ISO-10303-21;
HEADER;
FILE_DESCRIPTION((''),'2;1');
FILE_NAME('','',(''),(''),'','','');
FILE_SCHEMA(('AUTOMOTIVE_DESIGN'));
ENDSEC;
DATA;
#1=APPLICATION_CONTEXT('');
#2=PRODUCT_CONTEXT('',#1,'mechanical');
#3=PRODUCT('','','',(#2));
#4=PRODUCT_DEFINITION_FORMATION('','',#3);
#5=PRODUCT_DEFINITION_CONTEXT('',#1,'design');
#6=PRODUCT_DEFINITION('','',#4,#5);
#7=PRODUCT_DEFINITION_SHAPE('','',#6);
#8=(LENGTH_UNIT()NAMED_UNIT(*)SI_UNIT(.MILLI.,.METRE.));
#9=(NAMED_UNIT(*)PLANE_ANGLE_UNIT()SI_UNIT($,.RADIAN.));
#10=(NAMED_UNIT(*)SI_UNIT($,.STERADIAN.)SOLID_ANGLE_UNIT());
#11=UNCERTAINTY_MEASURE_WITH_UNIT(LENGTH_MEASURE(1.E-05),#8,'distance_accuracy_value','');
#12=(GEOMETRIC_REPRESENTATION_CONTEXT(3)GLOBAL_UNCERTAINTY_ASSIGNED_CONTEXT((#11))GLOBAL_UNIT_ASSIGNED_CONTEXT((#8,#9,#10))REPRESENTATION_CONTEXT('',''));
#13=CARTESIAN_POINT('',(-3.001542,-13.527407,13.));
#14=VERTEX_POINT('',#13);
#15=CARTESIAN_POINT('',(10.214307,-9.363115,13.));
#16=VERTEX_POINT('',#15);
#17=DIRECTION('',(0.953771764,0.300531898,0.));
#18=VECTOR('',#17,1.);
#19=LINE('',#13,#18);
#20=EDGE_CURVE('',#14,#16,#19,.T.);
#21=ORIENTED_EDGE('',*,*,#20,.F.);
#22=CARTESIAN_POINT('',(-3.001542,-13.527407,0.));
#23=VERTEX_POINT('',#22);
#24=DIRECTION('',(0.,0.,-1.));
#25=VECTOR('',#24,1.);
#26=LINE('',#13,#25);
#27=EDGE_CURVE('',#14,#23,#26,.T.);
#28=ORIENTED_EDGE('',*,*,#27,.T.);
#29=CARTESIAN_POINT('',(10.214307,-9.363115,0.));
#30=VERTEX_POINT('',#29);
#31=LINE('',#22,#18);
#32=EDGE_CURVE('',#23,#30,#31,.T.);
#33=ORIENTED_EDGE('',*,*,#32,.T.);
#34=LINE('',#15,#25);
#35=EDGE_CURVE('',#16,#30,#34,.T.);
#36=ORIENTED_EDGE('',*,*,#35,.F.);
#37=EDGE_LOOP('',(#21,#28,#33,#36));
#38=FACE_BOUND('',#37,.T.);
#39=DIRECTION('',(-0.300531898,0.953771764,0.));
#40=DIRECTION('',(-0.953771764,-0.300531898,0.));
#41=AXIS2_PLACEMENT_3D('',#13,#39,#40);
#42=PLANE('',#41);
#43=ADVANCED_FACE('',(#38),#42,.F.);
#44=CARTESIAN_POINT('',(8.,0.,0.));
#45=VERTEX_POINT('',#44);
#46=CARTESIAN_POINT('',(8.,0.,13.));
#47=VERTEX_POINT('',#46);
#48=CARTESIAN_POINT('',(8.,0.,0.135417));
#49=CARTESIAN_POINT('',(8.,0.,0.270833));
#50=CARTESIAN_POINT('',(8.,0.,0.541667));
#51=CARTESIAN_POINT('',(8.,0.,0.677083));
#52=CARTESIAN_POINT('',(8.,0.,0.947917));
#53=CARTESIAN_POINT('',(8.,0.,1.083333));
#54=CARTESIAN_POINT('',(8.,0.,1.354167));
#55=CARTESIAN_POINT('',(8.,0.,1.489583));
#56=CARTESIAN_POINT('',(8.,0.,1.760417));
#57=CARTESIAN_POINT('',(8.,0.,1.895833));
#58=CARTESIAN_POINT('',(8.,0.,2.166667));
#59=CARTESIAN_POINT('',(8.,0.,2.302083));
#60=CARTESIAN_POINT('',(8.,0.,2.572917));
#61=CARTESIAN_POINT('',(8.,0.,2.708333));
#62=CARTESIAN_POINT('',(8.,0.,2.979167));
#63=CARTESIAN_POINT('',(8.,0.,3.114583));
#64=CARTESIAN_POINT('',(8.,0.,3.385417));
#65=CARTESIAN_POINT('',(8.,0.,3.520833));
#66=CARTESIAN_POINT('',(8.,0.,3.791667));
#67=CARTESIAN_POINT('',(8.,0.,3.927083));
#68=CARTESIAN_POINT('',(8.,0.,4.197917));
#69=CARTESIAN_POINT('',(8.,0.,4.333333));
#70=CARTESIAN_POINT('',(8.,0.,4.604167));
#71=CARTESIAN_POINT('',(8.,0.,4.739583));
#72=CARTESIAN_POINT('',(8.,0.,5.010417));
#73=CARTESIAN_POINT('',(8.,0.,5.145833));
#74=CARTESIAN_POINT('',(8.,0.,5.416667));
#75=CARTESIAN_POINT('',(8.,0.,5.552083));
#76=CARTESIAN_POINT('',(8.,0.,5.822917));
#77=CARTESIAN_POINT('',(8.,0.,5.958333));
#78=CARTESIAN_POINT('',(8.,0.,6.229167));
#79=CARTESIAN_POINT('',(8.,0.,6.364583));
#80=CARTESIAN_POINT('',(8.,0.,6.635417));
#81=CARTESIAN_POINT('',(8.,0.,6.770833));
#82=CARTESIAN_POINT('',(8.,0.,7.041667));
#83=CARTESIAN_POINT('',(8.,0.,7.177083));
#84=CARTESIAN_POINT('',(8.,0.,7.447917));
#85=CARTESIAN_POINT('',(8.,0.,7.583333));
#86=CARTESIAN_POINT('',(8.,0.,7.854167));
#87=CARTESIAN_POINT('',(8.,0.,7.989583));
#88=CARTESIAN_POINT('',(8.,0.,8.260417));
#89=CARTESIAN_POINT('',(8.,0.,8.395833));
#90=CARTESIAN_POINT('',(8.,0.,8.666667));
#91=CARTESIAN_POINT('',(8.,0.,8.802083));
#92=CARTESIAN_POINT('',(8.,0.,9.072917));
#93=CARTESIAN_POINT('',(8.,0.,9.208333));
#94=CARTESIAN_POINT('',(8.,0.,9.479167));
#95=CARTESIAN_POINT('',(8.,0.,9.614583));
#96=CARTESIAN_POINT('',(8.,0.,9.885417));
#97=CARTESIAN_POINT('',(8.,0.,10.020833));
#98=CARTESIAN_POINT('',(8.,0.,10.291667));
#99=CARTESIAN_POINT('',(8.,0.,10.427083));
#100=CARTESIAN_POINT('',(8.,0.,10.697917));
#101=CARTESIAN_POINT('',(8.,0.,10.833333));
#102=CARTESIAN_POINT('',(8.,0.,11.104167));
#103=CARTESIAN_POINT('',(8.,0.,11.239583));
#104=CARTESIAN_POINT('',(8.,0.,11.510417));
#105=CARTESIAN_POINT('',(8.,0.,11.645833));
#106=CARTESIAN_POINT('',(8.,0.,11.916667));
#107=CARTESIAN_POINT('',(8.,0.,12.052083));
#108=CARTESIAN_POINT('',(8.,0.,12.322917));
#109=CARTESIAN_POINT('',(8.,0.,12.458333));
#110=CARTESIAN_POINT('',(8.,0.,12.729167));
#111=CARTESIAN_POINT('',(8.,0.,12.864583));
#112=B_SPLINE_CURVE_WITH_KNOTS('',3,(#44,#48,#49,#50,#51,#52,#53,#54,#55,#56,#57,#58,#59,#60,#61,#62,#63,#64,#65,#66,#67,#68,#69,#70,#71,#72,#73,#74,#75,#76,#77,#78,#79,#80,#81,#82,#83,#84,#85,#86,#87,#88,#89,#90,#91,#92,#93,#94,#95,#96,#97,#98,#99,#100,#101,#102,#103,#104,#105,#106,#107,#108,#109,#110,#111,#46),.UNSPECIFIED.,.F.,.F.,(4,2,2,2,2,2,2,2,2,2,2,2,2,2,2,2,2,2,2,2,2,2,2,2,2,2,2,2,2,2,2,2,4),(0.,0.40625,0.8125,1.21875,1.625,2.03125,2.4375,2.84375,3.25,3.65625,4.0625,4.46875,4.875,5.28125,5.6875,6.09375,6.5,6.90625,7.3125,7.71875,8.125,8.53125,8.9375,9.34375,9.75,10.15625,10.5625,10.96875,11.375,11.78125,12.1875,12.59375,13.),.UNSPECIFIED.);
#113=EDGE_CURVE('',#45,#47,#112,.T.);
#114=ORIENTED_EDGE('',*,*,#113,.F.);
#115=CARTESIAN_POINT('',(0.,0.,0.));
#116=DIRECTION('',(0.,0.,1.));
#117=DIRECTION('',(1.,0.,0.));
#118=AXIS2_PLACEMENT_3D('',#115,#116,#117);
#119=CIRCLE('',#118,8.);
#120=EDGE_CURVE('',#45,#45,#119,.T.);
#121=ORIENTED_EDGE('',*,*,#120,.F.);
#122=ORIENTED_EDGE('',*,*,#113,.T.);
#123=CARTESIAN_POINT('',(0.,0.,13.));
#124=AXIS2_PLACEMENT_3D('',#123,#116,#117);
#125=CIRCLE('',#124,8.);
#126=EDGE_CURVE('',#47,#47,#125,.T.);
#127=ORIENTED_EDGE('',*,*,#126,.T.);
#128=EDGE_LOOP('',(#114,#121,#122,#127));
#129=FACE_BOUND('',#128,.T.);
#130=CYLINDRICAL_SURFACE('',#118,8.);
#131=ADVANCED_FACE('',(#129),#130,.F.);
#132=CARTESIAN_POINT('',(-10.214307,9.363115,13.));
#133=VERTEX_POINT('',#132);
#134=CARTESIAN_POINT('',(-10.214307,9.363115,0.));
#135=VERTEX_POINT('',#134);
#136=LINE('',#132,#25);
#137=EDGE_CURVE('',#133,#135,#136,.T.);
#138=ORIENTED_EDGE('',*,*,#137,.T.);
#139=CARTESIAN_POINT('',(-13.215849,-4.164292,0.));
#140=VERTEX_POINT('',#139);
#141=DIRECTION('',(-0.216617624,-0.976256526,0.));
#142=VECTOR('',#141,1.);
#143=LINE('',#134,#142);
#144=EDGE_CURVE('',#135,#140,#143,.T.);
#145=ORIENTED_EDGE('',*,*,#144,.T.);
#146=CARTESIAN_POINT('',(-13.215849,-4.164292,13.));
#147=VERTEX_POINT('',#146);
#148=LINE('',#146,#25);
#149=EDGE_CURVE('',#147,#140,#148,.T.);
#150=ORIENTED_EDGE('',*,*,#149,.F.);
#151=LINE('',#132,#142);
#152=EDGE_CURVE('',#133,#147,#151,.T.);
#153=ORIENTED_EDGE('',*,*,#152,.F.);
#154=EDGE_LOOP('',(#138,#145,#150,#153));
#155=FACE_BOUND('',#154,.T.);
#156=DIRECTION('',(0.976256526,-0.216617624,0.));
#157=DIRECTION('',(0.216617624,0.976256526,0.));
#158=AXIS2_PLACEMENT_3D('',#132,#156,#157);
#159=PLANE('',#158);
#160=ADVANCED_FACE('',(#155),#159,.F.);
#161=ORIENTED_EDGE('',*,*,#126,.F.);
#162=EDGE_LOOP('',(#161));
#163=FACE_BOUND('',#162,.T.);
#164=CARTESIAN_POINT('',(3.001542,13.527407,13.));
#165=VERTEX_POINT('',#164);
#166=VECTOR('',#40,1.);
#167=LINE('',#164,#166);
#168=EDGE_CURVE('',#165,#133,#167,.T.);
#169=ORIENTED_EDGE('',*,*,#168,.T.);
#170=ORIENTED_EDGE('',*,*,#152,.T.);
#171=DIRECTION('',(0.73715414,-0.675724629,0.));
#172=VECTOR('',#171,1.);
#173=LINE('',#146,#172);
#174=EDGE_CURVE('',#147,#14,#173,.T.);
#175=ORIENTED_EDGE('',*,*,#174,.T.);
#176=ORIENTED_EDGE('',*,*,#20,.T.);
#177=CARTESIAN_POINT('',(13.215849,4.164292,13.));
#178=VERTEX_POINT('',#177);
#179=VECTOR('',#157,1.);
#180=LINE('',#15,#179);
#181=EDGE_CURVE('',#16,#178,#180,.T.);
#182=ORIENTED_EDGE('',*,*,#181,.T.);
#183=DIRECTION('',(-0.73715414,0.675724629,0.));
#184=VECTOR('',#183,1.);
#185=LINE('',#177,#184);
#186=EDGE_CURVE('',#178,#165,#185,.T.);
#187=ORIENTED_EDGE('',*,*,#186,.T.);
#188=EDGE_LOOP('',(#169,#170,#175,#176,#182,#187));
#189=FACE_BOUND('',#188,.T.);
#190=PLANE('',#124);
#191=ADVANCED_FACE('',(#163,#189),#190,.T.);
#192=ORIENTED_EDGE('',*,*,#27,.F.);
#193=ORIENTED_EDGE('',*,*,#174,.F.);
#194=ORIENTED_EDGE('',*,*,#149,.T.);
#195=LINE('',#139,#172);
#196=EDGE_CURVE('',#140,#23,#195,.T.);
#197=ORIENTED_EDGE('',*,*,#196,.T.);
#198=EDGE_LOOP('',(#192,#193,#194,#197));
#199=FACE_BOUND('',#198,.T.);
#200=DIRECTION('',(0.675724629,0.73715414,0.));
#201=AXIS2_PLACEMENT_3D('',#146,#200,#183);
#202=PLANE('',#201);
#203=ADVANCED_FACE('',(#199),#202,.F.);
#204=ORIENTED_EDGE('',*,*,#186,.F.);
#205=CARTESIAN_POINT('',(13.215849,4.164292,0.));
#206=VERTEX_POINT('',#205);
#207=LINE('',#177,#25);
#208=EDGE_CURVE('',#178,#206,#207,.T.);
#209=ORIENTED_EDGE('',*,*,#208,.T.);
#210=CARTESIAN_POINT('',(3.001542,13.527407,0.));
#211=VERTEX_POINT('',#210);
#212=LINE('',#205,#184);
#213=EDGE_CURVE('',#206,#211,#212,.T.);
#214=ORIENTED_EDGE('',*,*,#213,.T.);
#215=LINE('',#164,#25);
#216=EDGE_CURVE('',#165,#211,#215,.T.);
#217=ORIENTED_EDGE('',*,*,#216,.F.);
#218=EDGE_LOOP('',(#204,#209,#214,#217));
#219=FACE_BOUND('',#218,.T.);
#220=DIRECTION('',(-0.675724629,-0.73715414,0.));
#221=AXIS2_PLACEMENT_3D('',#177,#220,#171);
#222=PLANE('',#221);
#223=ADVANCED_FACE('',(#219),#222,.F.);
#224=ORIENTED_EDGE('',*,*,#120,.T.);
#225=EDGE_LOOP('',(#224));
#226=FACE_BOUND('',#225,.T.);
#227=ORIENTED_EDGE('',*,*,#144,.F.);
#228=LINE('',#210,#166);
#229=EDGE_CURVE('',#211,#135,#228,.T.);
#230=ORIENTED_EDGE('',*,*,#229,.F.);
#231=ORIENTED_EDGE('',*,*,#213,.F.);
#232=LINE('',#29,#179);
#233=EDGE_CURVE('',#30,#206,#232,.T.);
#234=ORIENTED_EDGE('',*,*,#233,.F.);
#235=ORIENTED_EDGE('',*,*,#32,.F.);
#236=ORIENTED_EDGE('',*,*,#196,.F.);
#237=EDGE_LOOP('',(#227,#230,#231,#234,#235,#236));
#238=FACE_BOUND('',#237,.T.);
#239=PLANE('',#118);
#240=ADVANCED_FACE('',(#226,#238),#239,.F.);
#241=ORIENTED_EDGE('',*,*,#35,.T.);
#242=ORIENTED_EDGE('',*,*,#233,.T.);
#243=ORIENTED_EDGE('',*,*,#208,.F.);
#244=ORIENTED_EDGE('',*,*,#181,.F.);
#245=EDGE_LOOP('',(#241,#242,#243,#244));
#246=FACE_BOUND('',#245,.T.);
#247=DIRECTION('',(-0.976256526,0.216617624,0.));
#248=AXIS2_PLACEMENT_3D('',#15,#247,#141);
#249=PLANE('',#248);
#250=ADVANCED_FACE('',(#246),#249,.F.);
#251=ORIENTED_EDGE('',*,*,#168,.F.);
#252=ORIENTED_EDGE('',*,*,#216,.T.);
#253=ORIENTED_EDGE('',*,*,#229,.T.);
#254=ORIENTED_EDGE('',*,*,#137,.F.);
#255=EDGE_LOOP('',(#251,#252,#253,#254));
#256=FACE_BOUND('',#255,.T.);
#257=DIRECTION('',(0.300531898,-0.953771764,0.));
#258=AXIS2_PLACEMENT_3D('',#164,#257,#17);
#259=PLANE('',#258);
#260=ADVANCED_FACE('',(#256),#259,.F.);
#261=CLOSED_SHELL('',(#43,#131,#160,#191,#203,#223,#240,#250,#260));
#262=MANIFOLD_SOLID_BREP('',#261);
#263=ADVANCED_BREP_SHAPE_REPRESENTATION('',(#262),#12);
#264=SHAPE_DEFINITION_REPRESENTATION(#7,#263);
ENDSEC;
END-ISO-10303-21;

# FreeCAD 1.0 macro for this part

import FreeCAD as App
import Part
import Sketcher
from FreeCAD import Vector

doc = App.newDocument("Part")
body = doc.addObject("PartDesign::Body", "Body")

# Sketch on XY plane
sketch1 = body.newObject("Sketcher::SketchObject", "Sketch")
sketch1.AttachmentSupport = (doc.getObject("XY_Plane"), [""])
sketch1.MapMode = "FlatFace"
sketch1.addGeometry(Part.LineSegment(Vector(10, -9, 0), Vector(13, 4, 0)), False)
sketch1.addGeometry(Part.LineSegment(Vector(13, 4, 0), Vector(3, 14, 0)), False)
sketch1.addGeometry(Part.LineSegment(Vector(3, 14, 0), Vector(-10, 9, 0)), False)
sketch1.addGeometry(Part.LineSegment(Vector(-10, 9, 0), Vector(-13, -4, 0)), False)
sketch1.addGeometry(Part.LineSegment(Vector(-13, -4, 0), Vector(-3, -14, 0)), False)
sketch1.addGeometry(Part.LineSegment(Vector(-3, -14, 0), Vector(10, -9, 0)), False)
sketch1.addConstraint(Sketcher.Constraint("Coincident", 0, 2, 1, 1))
sketch1.addConstraint(Sketcher.Constraint("Coincident", 1, 2, 2, 1))
sketch1.addConstraint(Sketcher.Constraint("Coincident", 2, 2, 3, 1))
sketch1.addConstraint(Sketcher.Constraint("Coincident", 3, 2, 4, 1))
sketch1.addConstraint(Sketcher.Constraint("Coincident", 4, 2, 5, 1))
sketch1.addConstraint(Sketcher.Constraint("Coincident", 5, 2, 0, 1))
sketch1.addConstraint(Sketcher.Constraint("Symmetric", 0, 2, 3, 2, -1, 1))
sketch1.addConstraint(Sketcher.Constraint("Symmetric", 1, 2, 4, 2, -1, 1))
sketch1.addConstraint(Sketcher.Constraint("Symmetric", 2, 2, 5, 2, -1, 1))
sketch1.addConstraint(Sketcher.Constraint("Equal", 0, 1))
sketch1.addConstraint(Sketcher.Constraint("Equal", 1, 2))
sketch1.addConstraint(Sketcher.Constraint("DistanceY", 3, 2, 1, 2, 17.691699))
sketch1.addConstraint(Sketcher.Constraint("DistanceX", 3, 2, 0, 2, 26.431698))
sketch1.addConstraint(Sketcher.Constraint("DistanceX", -1, 1, 1, 2, 3.001542))
sketch1.addConstraint(Sketcher.Constraint("DistanceX", 2, 2, 1, 2, 13.215849))
pad1 = body.newObject("PartDesign::Pad", "Pad")
pad1.Profile = sketch1
pad1.Length = 13

# Sketch on XY plane
sketch2 = body.newObject("Sketcher::SketchObject", "Sketch001")
sketch2.AttachmentSupport = (doc.getObject("XY_Plane"), [""])
sketch2.MapMode = "FlatFace"
sketch2.AttachmentOffset = App.Placement(Vector(0, 0, 13), App.Rotation())
sketch2.addGeometry(Part.Circle(Vector(0, 0, 0), Vector(0, 0, 1), 8), False)
sketch2.addConstraint(Sketcher.Constraint("Coincident", 0, 3, -1, 1))
sketch2.addConstraint(Sketcher.Constraint("Diameter", 0, 16.0))
pocket1 = body.newObject("PartDesign::Pocket", "Pocket")
pocket1.Profile = sketch2
pocket1.Type = "ThroughAll"

doc.recompute()
